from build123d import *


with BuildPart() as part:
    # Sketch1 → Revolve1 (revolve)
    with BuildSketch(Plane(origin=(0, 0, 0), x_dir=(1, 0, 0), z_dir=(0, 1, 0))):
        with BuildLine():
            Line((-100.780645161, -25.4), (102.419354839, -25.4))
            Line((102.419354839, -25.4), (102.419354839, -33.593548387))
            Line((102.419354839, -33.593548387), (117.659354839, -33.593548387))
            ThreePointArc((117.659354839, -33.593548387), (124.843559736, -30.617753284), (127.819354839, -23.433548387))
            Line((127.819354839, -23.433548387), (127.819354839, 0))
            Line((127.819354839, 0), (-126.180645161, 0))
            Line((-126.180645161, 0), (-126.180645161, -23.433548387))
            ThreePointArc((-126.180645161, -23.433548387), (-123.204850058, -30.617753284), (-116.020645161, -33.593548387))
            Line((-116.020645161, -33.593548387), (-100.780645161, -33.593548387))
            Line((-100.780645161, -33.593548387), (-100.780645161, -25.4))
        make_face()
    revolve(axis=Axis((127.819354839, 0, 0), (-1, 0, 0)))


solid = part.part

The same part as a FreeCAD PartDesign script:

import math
import FreeCAD as App
import Part
import Sketcher
from FreeCAD import Vector
Q = App.Units.Quantity

doc = App.newDocument("Part")
params = doc.addObject("Spreadsheet::Sheet", "Params")
for row, (alias, value) in enumerate([
    ("sketch1_radius", "0.4 in"),
    ("sketch1_width", "8 in"),
    ("sketch1_width2", "10 in"),
    ("revolution_angle", "360 deg"),
], start=1):
    params.set(f"A{row}", alias)
    params.set(f"B{row}", "=" + value)
    params.setAlias(f"B{row}", alias)

body = doc.addObject("PartDesign::Body", "Body")

sketch1 = body.newObject("Sketcher::SketchObject", "Sketch")
sketch1.AttachmentSupport = (doc.getObject("XZ_Plane"), [""])
sketch1.MapMode = "FlatFace"
sketch1.addGeometry(Part.LineSegment(Vector(-101, 25, 0), Vector(102, 25, 0)), False)
sketch1.addGeometry(Part.LineSegment(Vector(102, 25, 0), Vector(102, 34, 0)), False)
sketch1.addGeometry(Part.LineSegment(Vector(102, 34, 0), Vector(118, 34, 0)), False)
sketch1.addGeometry(Part.ArcOfCircle(Part.Circle(Vector(118, 23, 0), Vector(0, 0, 1), 10), math.radians(0), math.radians(90)), False)
sketch1.addGeometry(Part.LineSegment(Vector(128, 23, 0), Vector(128, 0, 0)), False)
sketch1.addGeometry(Part.LineSegment(Vector(128, 0, 0), Vector(-126, 0, 0)), False)
sketch1.addGeometry(Part.LineSegment(Vector(-126, 0, 0), Vector(-126, 23, 0)), False)
sketch1.addGeometry(Part.ArcOfCircle(Part.Circle(Vector(-116, 23, 0), Vector(0, 0, 1), 10), math.radians(90), math.radians(180)), False)
sketch1.addGeometry(Part.LineSegment(Vector(-116, 34, 0), Vector(-101, 34, 0)), False)
sketch1.addGeometry(Part.LineSegment(Vector(-101, 34, 0), Vector(-101, 25, 0)), False)
sketch1.addConstraint(Sketcher.Constraint("Coincident", 0, 2, 1, 1))
sketch1.addConstraint(Sketcher.Constraint("Coincident", 1, 2, 2, 1))
sketch1.addConstraint(Sketcher.Constraint("Tangent", 2, 2, 3, 2))
sketch1.addConstraint(Sketcher.Constraint("Tangent", 3, 1, 4, 1))
sketch1.addConstraint(Sketcher.Constraint("Coincident", 4, 2, 5, 1))
sketch1.addConstraint(Sketcher.Constraint("Coincident", 5, 2, 6, 1))
sketch1.addConstraint(Sketcher.Constraint("Tangent", 6, 2, 7, 2))
sketch1.addConstraint(Sketcher.Constraint("Tangent", 7, 1, 8, 1))
sketch1.addConstraint(Sketcher.Constraint("Coincident", 8, 2, 9, 1))
sketch1.addConstraint(Sketcher.Constraint("Coincident", 9, 2, 0, 1))
sketch1.addConstraint(Sketcher.Constraint("Horizontal", 0))
sketch1.addConstraint(Sketcher.Constraint("Vertical", 1))
sketch1.addConstraint(Sketcher.Constraint("Horizontal", 2))
sketch1.addConstraint(Sketcher.Constraint("Vertical", 4))
sketch1.addConstraint(Sketcher.Constraint("Horizontal", 5))
sketch1.addConstraint(Sketcher.Constraint("Vertical", 6))
sketch1.addConstraint(Sketcher.Constraint("Horizontal", 8))
sketch1.addConstraint(Sketcher.Constraint("Vertical", 9))
sketch1.addConstraint(Sketcher.Constraint("Equal", 3, 7))
sketch1.addConstraint(Sketcher.Constraint("PointOnObject", 4, 2, -1))
sketch1.addConstraint(Sketcher.Constraint("Horizontal", 3, 3, 7, 3))
sketch1.addConstraint(Sketcher.Constraint("Equal", 2, 8))
sketch1.addConstraint(Sketcher.Constraint("Radius", 3, Q("0.4 in")))
sketch1.addConstraint(Sketcher.Constraint("DistanceX", 0, 1, 0, 2, Q("8 in")))
sketch1.addConstraint(Sketcher.Constraint("DistanceX", 5, 2, 5, 1, Q("10 in")))
sketch1.addConstraint(Sketcher.Constraint("DistanceY", -1, 1, 0, 2, Q("1 in")))
sketch1.addConstraint(Sketcher.Constraint("DistanceY", 1, 1, 1, 2, Q("8.193548 mm")))
sketch1.addConstraint(Sketcher.Constraint("DistanceX", -1, 1, 3, 3, Q("117.659355 mm")))
sketch1.setExpression("Constraints[22]", "Params.sketch1_radius")
sketch1.setExpression("Constraints[23]", "Params.sketch1_width")
sketch1.setExpression("Constraints[24]", "Params.sketch1_width2")
revolution = body.newObject("PartDesign::Revolution", "Revolution")
revolution.Profile = sketch1
revolution.ReferenceAxis = (sketch1, ["H_Axis"])
revolution.setExpression("Angle", "Params.revolution_angle")

doc.recompute()
